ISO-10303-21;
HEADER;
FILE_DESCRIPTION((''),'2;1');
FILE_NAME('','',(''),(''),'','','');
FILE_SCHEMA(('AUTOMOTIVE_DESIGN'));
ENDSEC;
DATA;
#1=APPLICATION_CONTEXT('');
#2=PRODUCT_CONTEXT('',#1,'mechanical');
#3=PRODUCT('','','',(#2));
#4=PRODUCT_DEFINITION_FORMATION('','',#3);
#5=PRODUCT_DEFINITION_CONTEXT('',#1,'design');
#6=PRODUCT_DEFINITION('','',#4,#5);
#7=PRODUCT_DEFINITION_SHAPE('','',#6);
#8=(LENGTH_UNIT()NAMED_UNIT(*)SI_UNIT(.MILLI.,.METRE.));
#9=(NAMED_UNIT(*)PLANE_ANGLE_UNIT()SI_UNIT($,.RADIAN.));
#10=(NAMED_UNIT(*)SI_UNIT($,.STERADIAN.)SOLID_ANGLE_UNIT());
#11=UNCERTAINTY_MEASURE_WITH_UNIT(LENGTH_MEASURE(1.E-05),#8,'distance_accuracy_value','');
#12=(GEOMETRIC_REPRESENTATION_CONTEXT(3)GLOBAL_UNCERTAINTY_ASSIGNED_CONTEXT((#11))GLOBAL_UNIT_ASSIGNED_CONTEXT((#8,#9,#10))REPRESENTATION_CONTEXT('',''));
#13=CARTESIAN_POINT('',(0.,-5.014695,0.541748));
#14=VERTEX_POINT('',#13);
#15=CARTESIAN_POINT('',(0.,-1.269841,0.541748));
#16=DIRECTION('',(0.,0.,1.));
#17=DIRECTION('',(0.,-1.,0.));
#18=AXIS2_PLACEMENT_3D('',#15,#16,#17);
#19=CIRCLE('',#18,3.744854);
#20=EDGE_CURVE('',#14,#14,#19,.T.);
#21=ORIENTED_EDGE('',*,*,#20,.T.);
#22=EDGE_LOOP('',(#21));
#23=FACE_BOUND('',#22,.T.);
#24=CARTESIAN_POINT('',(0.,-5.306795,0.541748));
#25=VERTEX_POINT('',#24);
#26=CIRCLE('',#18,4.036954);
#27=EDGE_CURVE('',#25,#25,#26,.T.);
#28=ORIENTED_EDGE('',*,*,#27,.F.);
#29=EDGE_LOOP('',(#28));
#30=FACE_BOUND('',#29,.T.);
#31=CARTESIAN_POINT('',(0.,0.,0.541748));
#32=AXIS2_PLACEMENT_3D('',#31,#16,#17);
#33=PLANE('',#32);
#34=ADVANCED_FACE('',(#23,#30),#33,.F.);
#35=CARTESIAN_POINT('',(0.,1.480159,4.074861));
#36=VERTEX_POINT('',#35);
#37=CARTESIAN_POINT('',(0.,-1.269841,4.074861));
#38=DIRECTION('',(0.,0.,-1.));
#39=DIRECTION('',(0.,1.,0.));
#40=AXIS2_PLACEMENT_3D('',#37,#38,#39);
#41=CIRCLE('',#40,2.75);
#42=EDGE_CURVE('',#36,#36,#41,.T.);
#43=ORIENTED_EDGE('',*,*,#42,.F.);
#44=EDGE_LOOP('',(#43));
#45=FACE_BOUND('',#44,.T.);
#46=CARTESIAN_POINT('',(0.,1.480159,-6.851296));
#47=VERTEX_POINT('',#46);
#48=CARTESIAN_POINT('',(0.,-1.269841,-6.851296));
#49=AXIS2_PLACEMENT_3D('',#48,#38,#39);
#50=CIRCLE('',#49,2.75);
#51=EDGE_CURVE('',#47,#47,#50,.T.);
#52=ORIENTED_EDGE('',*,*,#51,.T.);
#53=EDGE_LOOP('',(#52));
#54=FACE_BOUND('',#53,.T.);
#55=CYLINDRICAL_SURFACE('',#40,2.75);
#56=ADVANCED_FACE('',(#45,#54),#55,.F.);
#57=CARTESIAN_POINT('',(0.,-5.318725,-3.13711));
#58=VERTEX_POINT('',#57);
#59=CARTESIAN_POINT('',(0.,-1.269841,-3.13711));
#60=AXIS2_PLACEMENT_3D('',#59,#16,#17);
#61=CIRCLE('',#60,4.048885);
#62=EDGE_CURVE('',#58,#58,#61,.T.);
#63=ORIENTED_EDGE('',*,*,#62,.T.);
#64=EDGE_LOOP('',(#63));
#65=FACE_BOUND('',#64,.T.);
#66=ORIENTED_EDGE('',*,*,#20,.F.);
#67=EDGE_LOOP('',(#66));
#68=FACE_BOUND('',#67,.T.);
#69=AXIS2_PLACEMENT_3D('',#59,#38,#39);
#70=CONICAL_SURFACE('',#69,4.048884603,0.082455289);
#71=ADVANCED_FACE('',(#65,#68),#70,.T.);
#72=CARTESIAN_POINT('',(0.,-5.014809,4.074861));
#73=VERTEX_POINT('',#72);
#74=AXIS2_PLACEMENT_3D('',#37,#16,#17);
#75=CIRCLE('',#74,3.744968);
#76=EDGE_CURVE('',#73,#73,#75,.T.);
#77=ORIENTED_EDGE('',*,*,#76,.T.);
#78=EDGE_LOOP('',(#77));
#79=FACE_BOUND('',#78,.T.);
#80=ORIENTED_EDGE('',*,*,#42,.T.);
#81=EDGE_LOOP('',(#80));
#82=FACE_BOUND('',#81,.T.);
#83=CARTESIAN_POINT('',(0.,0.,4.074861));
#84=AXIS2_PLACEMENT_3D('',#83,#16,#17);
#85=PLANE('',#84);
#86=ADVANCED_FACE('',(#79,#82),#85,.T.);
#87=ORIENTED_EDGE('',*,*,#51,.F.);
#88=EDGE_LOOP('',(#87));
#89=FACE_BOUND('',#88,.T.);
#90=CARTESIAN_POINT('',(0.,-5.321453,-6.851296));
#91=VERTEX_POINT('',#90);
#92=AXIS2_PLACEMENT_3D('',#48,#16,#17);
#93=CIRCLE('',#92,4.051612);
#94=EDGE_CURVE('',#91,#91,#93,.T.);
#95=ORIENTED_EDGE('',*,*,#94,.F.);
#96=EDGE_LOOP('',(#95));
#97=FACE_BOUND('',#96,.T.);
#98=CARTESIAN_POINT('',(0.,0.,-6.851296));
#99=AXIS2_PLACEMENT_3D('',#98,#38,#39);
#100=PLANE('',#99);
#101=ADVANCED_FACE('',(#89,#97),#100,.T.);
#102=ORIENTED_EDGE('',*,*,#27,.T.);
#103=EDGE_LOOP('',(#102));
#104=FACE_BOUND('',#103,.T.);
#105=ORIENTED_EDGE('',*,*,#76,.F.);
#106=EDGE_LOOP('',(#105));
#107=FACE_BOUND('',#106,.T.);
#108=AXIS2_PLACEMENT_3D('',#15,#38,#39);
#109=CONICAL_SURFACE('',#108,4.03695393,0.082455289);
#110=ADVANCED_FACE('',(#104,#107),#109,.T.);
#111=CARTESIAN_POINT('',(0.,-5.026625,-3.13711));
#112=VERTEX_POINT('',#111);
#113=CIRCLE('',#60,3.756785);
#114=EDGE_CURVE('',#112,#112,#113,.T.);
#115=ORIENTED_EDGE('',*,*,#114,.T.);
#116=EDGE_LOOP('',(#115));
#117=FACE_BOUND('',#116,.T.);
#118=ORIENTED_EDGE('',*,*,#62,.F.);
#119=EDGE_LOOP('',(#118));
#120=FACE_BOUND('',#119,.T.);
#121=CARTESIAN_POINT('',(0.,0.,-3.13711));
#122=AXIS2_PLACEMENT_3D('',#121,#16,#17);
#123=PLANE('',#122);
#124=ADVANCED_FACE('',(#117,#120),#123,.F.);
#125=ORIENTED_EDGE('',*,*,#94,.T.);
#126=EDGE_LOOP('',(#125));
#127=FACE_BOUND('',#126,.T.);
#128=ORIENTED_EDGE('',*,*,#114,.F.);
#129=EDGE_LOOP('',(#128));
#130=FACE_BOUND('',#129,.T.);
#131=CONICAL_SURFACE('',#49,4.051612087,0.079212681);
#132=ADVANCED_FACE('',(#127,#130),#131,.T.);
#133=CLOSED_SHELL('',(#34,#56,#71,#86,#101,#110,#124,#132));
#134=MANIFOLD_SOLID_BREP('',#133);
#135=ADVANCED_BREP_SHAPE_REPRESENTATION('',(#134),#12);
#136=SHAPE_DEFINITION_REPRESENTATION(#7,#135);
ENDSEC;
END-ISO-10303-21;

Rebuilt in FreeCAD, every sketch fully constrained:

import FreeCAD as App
import Part
import Sketcher


def add_polygon(sketch, points):
    """Adds a closed chain of lines whose ends are joined by coincident constraints."""
    first, n = sketch.GeometryCount, len(points)
    for a, b in zip(points, points[1:] + points[:1]):
        sketch.addGeometry(Part.LineSegment(App.Vector(*a, 0), App.Vector(*b, 0)), False)
    for i in range(n):
        sketch.addConstraint(Sketcher.Constraint("Coincident", first + i, 2, first + (i + 1) % n, 1))

doc = App.newDocument("Part")
params = doc.addObject("Spreadsheet::Sheet", "Params")
for row, (alias, value) in enumerate([
    ("revolution_angle", "360 deg"),
    ("sketch2_diameter", "5.5 mm"),
], start=1):
    params.set(f"A{row}", alias)
    params.set(f"B{row}", "=" + value)
    params.setAlias(f"B{row}", alias)

body = doc.addObject("PartDesign::Body", "Body")

sketch1 = doc.addObject("Sketcher::SketchObject", "Sketch")
body.addObject(sketch1)
sketch1.AttachmentSupport = (doc.YZ_Plane, [""])
sketch1.MapMode = "FlatFace"
add_polygon(sketch1, [(-1.27, -6.85), (2.78, -6.85), (2.49, -3.14), (2.78, -3.14), (2.48, 0.54), (2.77, 0.54), (2.48, 4.07), (-1.27, 4.07)])
sketch1.addGeometry(Part.LineSegment(App.Vector(-1.27, 4.07, 0), App.Vector(-1.27, -6.85, 0)), True)
sketch1.addConstraint(Sketcher.Constraint("Horizontal", 0))
sketch1.addConstraint(Sketcher.Constraint("Horizontal", 2))
sketch1.addConstraint(Sketcher.Constraint("Horizontal", 4))
sketch1.addConstraint(Sketcher.Constraint("Horizontal", 6))
sketch1.addConstraint(Sketcher.Constraint("Vertical", 7))
sketch1.addConstraint(Sketcher.Constraint("Vertical", 8))
sketch1.addConstraint(Sketcher.Constraint("Coincident", 8, 1, 6, 2))
sketch1.addConstraint(Sketcher.Constraint("Parallel", 3, 5))
sketch1.addConstraint(Sketcher.Constraint("Horizontal", 0, 2, 8, 2))
sketch1.addConstraint(Sketcher.Constraint("Equal", 2, 4))
sketch1.addConstraint(Sketcher.Constraint("DistanceX", 2, 1, 2, 2, 0.2921))
sketch1.addConstraint(Sketcher.Constraint("Distance", 3, 3.6914))
sketch1.addConstraint(Sketcher.Constraint("DistanceX", 6, 2, 6, 1, 3.744968))
sketch1.addConstraint(Sketcher.Constraint("Distance", 1, 3.725869))
sketch1.addConstraint(Sketcher.Constraint("DistanceX", 0, 1, 0, 2, 4.051612))
sketch1.addConstraint(Sketcher.Constraint("DistanceY", 7, 2, 7, 1, 10.926157))
sketch1.addConstraint(Sketcher.Constraint("DistanceX", -1, 1, 0, 2, 2.781771))
sketch1.addConstraint(Sketcher.Constraint("DistanceY", 1, 2, -1, 1, 3.13711))
sketch1.addConstraint(Sketcher.Constraint("DistanceY", -1, 1, 3, 2, 0.541748))
revolution = doc.addObject("PartDesign::Revolution", "Revolution")
body.addObject(revolution)
revolution.Profile = sketch1
revolution.ReferenceAxis = (sketch1, ["Axis0"])
revolution.setExpression("Angle", "Params.revolution_angle")

sketch2 = doc.addObject("Sketcher::SketchObject", "Sketch001")
body.addObject(sketch2)
sketch2.AttachmentSupport = (doc.XY_Plane, [""])
sketch2.MapMode = "FlatFace"
sketch2.AttachmentOffset = App.Placement(App.Vector(0, 0, -6.851296), App.Rotation())
sketch2.addGeometry(Part.Circle(App.Vector(0, -1.3, 0), App.Vector(0, 0, 1), 2.8), False)
sketch2.addConstraint(Sketcher.Constraint("PointOnObject", 0, 3, -2))
sketch2.addConstraint(Sketcher.Constraint("Diameter", 0, 5.5))
sketch2.addConstraint(Sketcher.Constraint("DistanceY", 0, 3, -1, 1, 1.269841))
sketch2.setExpression("Constraints[1]", "Params.sketch2_diameter")
pocket1 = doc.addObject("PartDesign::Pocket", "Pocket")
body.addObject(pocket1)
pocket1.Profile = sketch2
pocket1.Type = "ThroughAll"
pocket1.Reversed = True

doc.recompute()
